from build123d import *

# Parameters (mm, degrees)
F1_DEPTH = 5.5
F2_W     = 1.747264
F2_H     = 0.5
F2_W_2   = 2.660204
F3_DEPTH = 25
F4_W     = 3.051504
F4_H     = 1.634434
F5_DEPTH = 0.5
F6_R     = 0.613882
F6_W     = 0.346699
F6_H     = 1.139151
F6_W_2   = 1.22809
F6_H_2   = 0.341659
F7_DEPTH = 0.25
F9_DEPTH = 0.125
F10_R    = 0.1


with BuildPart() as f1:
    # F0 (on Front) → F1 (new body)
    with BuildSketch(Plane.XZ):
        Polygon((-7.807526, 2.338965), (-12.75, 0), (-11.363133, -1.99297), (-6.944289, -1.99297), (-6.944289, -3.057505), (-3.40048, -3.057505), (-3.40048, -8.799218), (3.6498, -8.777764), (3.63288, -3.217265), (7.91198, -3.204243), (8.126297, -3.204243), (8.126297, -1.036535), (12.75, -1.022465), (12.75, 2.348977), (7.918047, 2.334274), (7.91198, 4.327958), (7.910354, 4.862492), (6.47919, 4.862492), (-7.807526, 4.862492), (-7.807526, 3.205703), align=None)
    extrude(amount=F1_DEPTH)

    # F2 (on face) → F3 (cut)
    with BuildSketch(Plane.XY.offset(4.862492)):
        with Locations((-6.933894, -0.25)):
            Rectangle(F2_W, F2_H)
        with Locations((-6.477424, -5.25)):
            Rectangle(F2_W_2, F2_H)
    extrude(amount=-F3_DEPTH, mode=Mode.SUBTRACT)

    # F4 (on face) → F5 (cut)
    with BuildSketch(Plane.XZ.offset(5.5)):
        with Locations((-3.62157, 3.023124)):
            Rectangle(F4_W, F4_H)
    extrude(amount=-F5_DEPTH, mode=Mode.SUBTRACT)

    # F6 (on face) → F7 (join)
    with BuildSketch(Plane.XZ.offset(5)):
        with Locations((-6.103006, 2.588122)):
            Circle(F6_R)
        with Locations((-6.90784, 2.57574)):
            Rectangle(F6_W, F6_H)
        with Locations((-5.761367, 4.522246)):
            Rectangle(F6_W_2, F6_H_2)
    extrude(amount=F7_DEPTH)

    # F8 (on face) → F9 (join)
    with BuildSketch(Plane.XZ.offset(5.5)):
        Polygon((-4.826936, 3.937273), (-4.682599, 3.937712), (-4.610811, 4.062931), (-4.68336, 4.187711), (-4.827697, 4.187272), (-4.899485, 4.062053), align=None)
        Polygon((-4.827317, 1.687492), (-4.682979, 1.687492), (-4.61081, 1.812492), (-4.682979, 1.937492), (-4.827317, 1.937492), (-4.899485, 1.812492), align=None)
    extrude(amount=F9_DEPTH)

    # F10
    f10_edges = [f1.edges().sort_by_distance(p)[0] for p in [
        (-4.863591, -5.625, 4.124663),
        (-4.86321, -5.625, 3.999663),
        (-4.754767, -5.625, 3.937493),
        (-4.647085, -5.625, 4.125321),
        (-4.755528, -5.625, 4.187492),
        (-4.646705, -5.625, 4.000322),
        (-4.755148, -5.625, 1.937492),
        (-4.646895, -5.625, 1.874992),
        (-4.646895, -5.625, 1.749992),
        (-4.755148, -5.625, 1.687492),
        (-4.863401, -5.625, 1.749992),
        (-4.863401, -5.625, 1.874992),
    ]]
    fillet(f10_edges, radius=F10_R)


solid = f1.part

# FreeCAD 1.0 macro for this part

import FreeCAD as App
import Part
import Sketcher


def edges_at(feature, points):
    """Names of the edges that pass closest to the given points."""
    edges = feature.Shape.Edges
    near = lambda p: min(range(len(edges)), key=lambda i: edges[i].distToShape(Part.Vertex(*p))[0])
    return sorted({f"Edge{near(p) + 1}" for p in points})

doc = App.newDocument("Part")
body = doc.addObject("PartDesign::Body", "Body")

# Sketch on XZ plane
sketch1 = body.newObject("Sketcher::SketchObject", "Sketch")
sketch1.AttachmentSupport = (doc.getObject("XZ_Plane"), [""])
sketch1.MapMode = "FlatFace"
sketch1.addGeometry([
    Part.LineSegment(App.Vector(-7.81, 2.34, 0), App.Vector(-12.75, 0, 0)),  # 0
    Part.LineSegment(App.Vector(-12.75, 0, 0), App.Vector(-11.36, -1.99, 0)),  # 1
    Part.LineSegment(App.Vector(-11.36, -1.99, 0), App.Vector(-6.94, -1.99, 0)),  # 2
    Part.LineSegment(App.Vector(-6.94, -1.99, 0), App.Vector(-6.94, -3.06, 0)),  # 3
    Part.LineSegment(App.Vector(-6.94, -3.06, 0), App.Vector(-3.4, -3.06, 0)),  # 4
    Part.LineSegment(App.Vector(-3.4, -3.06, 0), App.Vector(-3.4, -8.8, 0)),  # 5
    Part.LineSegment(App.Vector(-3.4, -8.8, 0), App.Vector(3.65, -8.78, 0)),  # 6
    Part.LineSegment(App.Vector(3.65, -8.78, 0), App.Vector(3.63, -3.22, 0)),  # 7
    Part.LineSegment(App.Vector(3.63, -3.22, 0), App.Vector(7.91, -3.2, 0)),  # 8
    Part.LineSegment(App.Vector(7.91, -3.2, 0), App.Vector(8.13, -3.2, 0)),  # 9
    Part.LineSegment(App.Vector(8.13, -3.2, 0), App.Vector(8.13, -1.04, 0)),  # 10
    Part.LineSegment(App.Vector(8.13, -1.04, 0), App.Vector(12.75, -1.02, 0)),  # 11
    Part.LineSegment(App.Vector(12.75, -1.02, 0), App.Vector(12.75, 2.35, 0)),  # 12
    Part.LineSegment(App.Vector(12.75, 2.35, 0), App.Vector(7.92, 2.33, 0)),  # 13
    Part.LineSegment(App.Vector(7.92, 2.33, 0), App.Vector(7.91, 4.33, 0)),  # 14
    Part.LineSegment(App.Vector(7.91, 4.33, 0), App.Vector(7.91, 4.86, 0)),  # 15
    Part.LineSegment(App.Vector(7.91, 4.86, 0), App.Vector(-7.81, 4.86, 0)),  # 16
    Part.LineSegment(App.Vector(-7.81, 4.86, 0), App.Vector(-7.81, 2.34, 0)),  # 17
], False)
sketch1.addConstraint([
    Sketcher.Constraint("Coincident", 0, 2, 1, 1),
    Sketcher.Constraint("Coincident", 1, 2, 2, 1),
    Sketcher.Constraint("Coincident", 2, 2, 3, 1),
    Sketcher.Constraint("Coincident", 3, 2, 4, 1),
    Sketcher.Constraint("Coincident", 4, 2, 5, 1),
    Sketcher.Constraint("Coincident", 5, 2, 6, 1),
    Sketcher.Constraint("Coincident", 6, 2, 7, 1),
    Sketcher.Constraint("Coincident", 7, 2, 8, 1),
    Sketcher.Constraint("Coincident", 8, 2, 9, 1),
    Sketcher.Constraint("Coincident", 9, 2, 10, 1),
    Sketcher.Constraint("Coincident", 10, 2, 11, 1),
    Sketcher.Constraint("Coincident", 11, 2, 12, 1),
    Sketcher.Constraint("Coincident", 12, 2, 13, 1),
    Sketcher.Constraint("Coincident", 13, 2, 14, 1),
    Sketcher.Constraint("Coincident", 14, 2, 15, 1),
    Sketcher.Constraint("Coincident", 15, 2, 16, 1),
    Sketcher.Constraint("Coincident", 16, 2, 17, 1),
    Sketcher.Constraint("Coincident", 17, 2, 0, 1),
    Sketcher.Constraint("Horizontal", 2),
    Sketcher.Constraint("Vertical", 3),
    Sketcher.Constraint("Horizontal", 4),
    Sketcher.Constraint("Vertical", 5),
    Sketcher.Constraint("Horizontal", 9),
    Sketcher.Constraint("Vertical", 10),
    Sketcher.Constraint("Vertical", 12),
    Sketcher.Constraint("Horizontal", 16),
    Sketcher.Constraint("Vertical", 17),
    Sketcher.Constraint("PointOnObject", 0, 2, -1),
    Sketcher.Constraint("Perpendicular", 6, 7),
    Sketcher.Constraint("Perpendicular", 7, 8),
    Sketcher.Constraint("Parallel", 8, 11),
    Sketcher.Constraint("Parallel", 11, 13),
    Sketcher.Constraint("Perpendicular", 13, 14),
    Sketcher.Constraint("Parallel", 14, 15),
    Sketcher.Constraint("Vertical", 8, 2, 14, 2),
    Sketcher.Constraint("DistanceX", 0, 2, -1, 1, 12.75),
    Sketcher.Constraint("DistanceX", -1, 1, 11, 2, 12.75),
    Sketcher.Constraint("DistanceX", 4, 1, 4, 2, 3.543809),
    Sketcher.Constraint("DistanceX", 16, 2, 16, 1, 15.71788),
    Sketcher.Constraint("DistanceY", 10, 1, 10, 2, 2.167708),
    Sketcher.Constraint("DistanceY", 12, 1, 12, 2, 3.371442),
    Sketcher.Constraint("DistanceX", -1, 1, 6, 2, 3.6498),
    Sketcher.Constraint("DistanceY", 6, 2, 7, 2, 5.560499),
    Sketcher.Constraint("DistanceX", 7, 2, 8, 2, 4.2791),
    Sketcher.Constraint("DistanceY", 7, 2, 11, 2, 2.1948),
    Sketcher.Constraint("DistanceY", 8, 2, 14, 2, 7.532201),
    Sketcher.Constraint("Distance", 0, 5.46798),
    Sketcher.Constraint("Distance", 1, 2.42803),
    Sketcher.Constraint("DistanceX", 2, 1, 2, 2, 4.418844),
    Sketcher.Constraint("DistanceX", 9, 1, 9, 2, 0.214317),
    Sketcher.Constraint("DistanceY", 3, 2, 3, 1, 1.064535),
    Sketcher.Constraint("DistanceY", 5, 2, 5, 1, 5.741713),
    Sketcher.Constraint("DistanceY", 17, 2, 17, 1, 2.523527),
    Sketcher.Constraint("DistanceY", 1, 2, -1, 1, 1.99297),
])
pad1 = body.newObject("PartDesign::Pad", "Pad")
pad1.Profile = sketch1
pad1.Length = 5.5

# Sketch on XY plane
sketch2 = body.newObject("Sketcher::SketchObject", "Sketch001")
sketch2.AttachmentSupport = (doc.getObject("XY_Plane"), [""])
sketch2.MapMode = "FlatFace"
sketch2.AttachmentOffset = App.Placement(App.Vector(0, 0, 4.862492), App.Rotation())
sketch2.addGeometry([
    Part.LineSegment(App.Vector(-7.8, 0, 0), App.Vector(-7.8, -0.5, 0)),  # 0
    Part.LineSegment(App.Vector(-7.8, -0.5, 0), App.Vector(-6.1, -0.5, 0)),  # 1
    Part.LineSegment(App.Vector(-6.1, -0.5, 0), App.Vector(-6.1, 0, 0)),  # 2
    Part.LineSegment(App.Vector(-6.1, 0, 0), App.Vector(-7.8, 0, 0)),  # 3
    Part.LineSegment(App.Vector(-7.8, -5, 0), App.Vector(-7.8, -5.5, 0)),  # 4
    Part.LineSegment(App.Vector(-7.8, -5.5, 0), App.Vector(-5.1, -5.5, 0)),  # 5
    Part.LineSegment(App.Vector(-5.1, -5.5, 0), App.Vector(-5.1, -5, 0)),  # 6
    Part.LineSegment(App.Vector(-5.1, -5, 0), App.Vector(-7.8, -5, 0)),  # 7
], False)
sketch2.addConstraint([
    Sketcher.Constraint("Coincident", 0, 2, 1, 1),
    Sketcher.Constraint("Coincident", 1, 2, 2, 1),
    Sketcher.Constraint("Coincident", 2, 2, 3, 1),
    Sketcher.Constraint("Coincident", 3, 2, 0, 1),
    Sketcher.Constraint("Coincident", 4, 2, 5, 1),
    Sketcher.Constraint("Coincident", 5, 2, 6, 1),
    Sketcher.Constraint("Coincident", 6, 2, 7, 1),
    Sketcher.Constraint("Coincident", 7, 2, 4, 1),
    Sketcher.Constraint("Vertical", 0),
    Sketcher.Constraint("Horizontal", 1),
    Sketcher.Constraint("Vertical", 2),
    Sketcher.Constraint("Horizontal", 3),
    Sketcher.Constraint("Vertical", 4),
    Sketcher.Constraint("Horizontal", 5),
    Sketcher.Constraint("Vertical", 6),
    Sketcher.Constraint("Horizontal", 7),
    Sketcher.Constraint("PointOnObject", 2, 2, -1),
    Sketcher.Constraint("Vertical", 3, 2, 4, 2),
    Sketcher.Constraint("Equal", 2, 4),
    Sketcher.Constraint("DistanceY", 0, 2, 0, 1, 0.5),
    Sketcher.Constraint("DistanceY", 6, 2, -1, 1, 5.0),
    Sketcher.Constraint("DistanceX", 1, 1, 1, 2, 1.747264),
    Sketcher.Constraint("DistanceX", 5, 1, 5, 2, 2.660204),
    Sketcher.Constraint("DistanceX", 1, 2, -1, 1, 6.060262),
])
pocket1 = body.newObject("PartDesign::Pocket", "Pocket")
pocket1.Profile = sketch2
pocket1.Length = 25

# Sketch on XZ plane
sketch3 = body.newObject("Sketcher::SketchObject", "Sketch002")
sketch3.AttachmentSupport = (doc.getObject("XZ_Plane"), [""])
sketch3.MapMode = "FlatFace"
sketch3.AttachmentOffset = App.Placement(App.Vector(0, 0, 5.5), App.Rotation())
sketch3.addGeometry([
    Part.LineSegment(App.Vector(-5.1, 3.8, 0), App.Vector(-5.1, 2.2, 0)),
    Part.LineSegment(App.Vector(-5.1, 2.2, 0), App.Vector(-2.1, 2.2, 0)),
    Part.LineSegment(App.Vector(-2.1, 2.2, 0), App.Vector(-2.1, 3.8, 0)),
    Part.LineSegment(App.Vector(-2.1, 3.8, 0), App.Vector(-5.1, 3.8, 0)),
], False)
sketch3.addConstraint([
    Sketcher.Constraint("Coincident", 0, 2, 1, 1),
    Sketcher.Constraint("Coincident", 1, 2, 2, 1),
    Sketcher.Constraint("Coincident", 2, 2, 3, 1),
    Sketcher.Constraint("Coincident", 3, 2, 0, 1),
    Sketcher.Constraint("Vertical", 0),
    Sketcher.Constraint("Horizontal", 1),
    Sketcher.Constraint("Vertical", 2),
    Sketcher.Constraint("Horizontal", 3),
    Sketcher.Constraint("DistanceX", 1, 1, 1, 2, 3.051504),
    Sketcher.Constraint("DistanceY", 0, 2, 0, 1, 1.634434),
    Sketcher.Constraint("DistanceX", 1, 2, -1, 1, 2.095818),
    Sketcher.Constraint("DistanceY", -1, 1, 2, 2, 3.840341),
])
pocket2 = body.newObject("PartDesign::Pocket", "Pocket001")
pocket2.Profile = sketch3
pocket2.Length = 0.5

# Sketch on XZ plane
sketch4 = body.newObject("Sketcher::SketchObject", "Sketch003")
sketch4.AttachmentSupport = (doc.getObject("XZ_Plane"), [""])
sketch4.MapMode = "FlatFace"
sketch4.AttachmentOffset = App.Placement(App.Vector(0, 0, 5), App.Rotation())
sketch4.addGeometry([
    Part.Circle(App.Vector(-6.1, 2.59, 0), App.Vector(0, 0, 1), 0.61),  # 0
    Part.LineSegment(App.Vector(-7.08, 3.15, 0), App.Vector(-7.08, 2.01, 0)),  # 1
    Part.LineSegment(App.Vector(-7.08, 2.01, 0), App.Vector(-6.73, 2.01, 0)),  # 2
    Part.LineSegment(App.Vector(-6.73, 2.01, 0), App.Vector(-6.73, 3.15, 0)),  # 3
    Part.LineSegment(App.Vector(-6.73, 3.15, 0), App.Vector(-7.08, 3.15, 0)),  # 4
    Part.LineSegment(App.Vector(-6.38, 4.69, 0), App.Vector(-6.38, 4.35, 0)),  # 5
    Part.LineSegment(App.Vector(-6.38, 4.35, 0), App.Vector(-5.15, 4.35, 0)),  # 6
    Part.LineSegment(App.Vector(-5.15, 4.35, 0), App.Vector(-5.15, 4.69, 0)),  # 7
    Part.LineSegment(App.Vector(-5.15, 4.69, 0), App.Vector(-6.38, 4.69, 0)),  # 8
], False)
sketch4.addConstraint([
    Sketcher.Constraint("Coincident", 1, 2, 2, 1),
    Sketcher.Constraint("Coincident", 2, 2, 3, 1),
    Sketcher.Constraint("Coincident", 3, 2, 4, 1),
    Sketcher.Constraint("Coincident", 4, 2, 1, 1),
    Sketcher.Constraint("Coincident", 5, 2, 6, 1),
    Sketcher.Constraint("Coincident", 6, 2, 7, 1),
    Sketcher.Constraint("Coincident", 7, 2, 8, 1),
    Sketcher.Constraint("Coincident", 8, 2, 5, 1),
    Sketcher.Constraint("Vertical", 1),
    Sketcher.Constraint("Horizontal", 2),
    Sketcher.Constraint("Vertical", 3),
    Sketcher.Constraint("Horizontal", 4),
    Sketcher.Constraint("Vertical", 5),
    Sketcher.Constraint("Horizontal", 6),
    Sketcher.Constraint("Vertical", 7),
    Sketcher.Constraint("Horizontal", 8),
    Sketcher.Constraint("Diameter", 0, 1.227764),
    Sketcher.Constraint("DistanceX", 2, 1, 2, 2, 0.346699),
    Sketcher.Constraint("DistanceX", 6, 1, 6, 2, 1.22809),
    Sketcher.Constraint("DistanceY", 1, 2, 1, 1, 1.139151),
    Sketcher.Constraint("DistanceY", 5, 2, 5, 1, 0.341659),
    Sketcher.Constraint("DistanceY", 3, 2, 5, 2, 1.206101),
    Sketcher.Constraint("DistanceY", -1, 1, 0, 3, 2.588122),
    Sketcher.Constraint("DistanceX", 1, 2, -1, 1, 7.081189),
    Sketcher.Constraint("DistanceX", 3, 2, 5, 2, 0.359078),
    Sketcher.Constraint("DistanceX", 0, 3, -1, 1, 6.103006),
    Sketcher.Constraint("DistanceY", -1, 1, 1, 2, 2.006165),
])
pad2 = body.newObject("PartDesign::Pad", "Pad001")
pad2.Profile = sketch4
pad2.Length = 0.25

# Sketch on XZ plane
sketch5 = body.newObject("Sketcher::SketchObject", "Sketch004")
sketch5.AttachmentSupport = (doc.getObject("XZ_Plane"), [""])
sketch5.MapMode = "FlatFace"
sketch5.AttachmentOffset = App.Placement(App.Vector(0, 0, 5.5), App.Rotation())
sketch5.addGeometry([
    Part.LineSegment(App.Vector(-4.826936, 3.937273, 0), App.Vector(-4.682599, 3.937712, 0)),  # 0
    Part.LineSegment(App.Vector(-4.682599, 3.937712, 0), App.Vector(-4.610811, 4.062931, 0)),  # 1
    Part.LineSegment(App.Vector(-4.610811, 4.062931, 0), App.Vector(-4.68336, 4.187711, 0)),  # 2
    Part.LineSegment(App.Vector(-4.68336, 4.187711, 0), App.Vector(-4.827697, 4.187272, 0)),  # 3
    Part.LineSegment(App.Vector(-4.827697, 4.187272, 0), App.Vector(-4.899485, 4.062053, 0)),  # 4
    Part.LineSegment(App.Vector(-4.899485, 4.062053, 0), App.Vector(-4.826936, 3.937273, 0)),  # 5
    Part.LineSegment(App.Vector(-4.827317, 1.687492, 0), App.Vector(-4.682979, 1.687492, 0)),  # 6
    Part.LineSegment(App.Vector(-4.682979, 1.687492, 0), App.Vector(-4.61081, 1.812492, 0)),  # 7
    Part.LineSegment(App.Vector(-4.61081, 1.812492, 0), App.Vector(-4.682979, 1.937492, 0)),  # 8
    Part.LineSegment(App.Vector(-4.682979, 1.937492, 0), App.Vector(-4.827317, 1.937492, 0)),  # 9
    Part.LineSegment(App.Vector(-4.827317, 1.937492, 0), App.Vector(-4.899485, 1.812492, 0)),  # 10
    Part.LineSegment(App.Vector(-4.899485, 1.812492, 0), App.Vector(-4.827317, 1.687492, 0)),  # 11
], False)
sketch5.addConstraint([
    Sketcher.Constraint("Coincident", 0, 2, 1, 1),
    Sketcher.Constraint("Coincident", 1, 2, 2, 1),
    Sketcher.Constraint("Coincident", 2, 2, 3, 1),
    Sketcher.Constraint("Coincident", 3, 2, 4, 1),
    Sketcher.Constraint("Coincident", 4, 2, 5, 1),
    Sketcher.Constraint("Coincident", 5, 2, 0, 1),
    Sketcher.Constraint("Coincident", 6, 2, 7, 1),
    Sketcher.Constraint("Coincident", 7, 2, 8, 1),
    Sketcher.Constraint("Coincident", 8, 2, 9, 1),
    Sketcher.Constraint("Coincident", 9, 2, 10, 1),
    Sketcher.Constraint("Coincident", 10, 2, 11, 1),
    Sketcher.Constraint("Coincident", 11, 2, 6, 1),
    Sketcher.Constraint("Horizontal", 6),
    Sketcher.Constraint("Horizontal", 9),
    Sketcher.Constraint("DistanceY", 0, 2, 2, 2, 0.249999),
    Sketcher.Constraint("DistanceY", 5, 2, 3, 2, 0.249999),
    Sketcher.Constraint("DistanceY", 6, 2, 8, 2, 0.25),
    Sketcher.Constraint("DistanceY", 6, 2, 7, 2, 0.125),
    Sketcher.Constraint("DistanceY", 10, 2, 9, 2, 0.125),
    Sketcher.Constraint("DistanceX", 6, 1, 6, 2, 0.144338),
    Sketcher.Constraint("DistanceX", 9, 2, 9, 1, 0.144338),
    Sketcher.Constraint("DistanceX", 0, 2, -1, 1, 4.682599),
    Sketcher.Constraint("DistanceY", -1, 1, 0, 2, 3.937712),
    Sketcher.Constraint("DistanceX", 1, 2, -1, 1, 4.610811),
    Sketcher.Constraint("DistanceY", -1, 1, 1, 2, 4.062931),
    Sketcher.Constraint("DistanceX", 2, 2, -1, 1, 4.68336),
    Sketcher.Constraint("DistanceX", 6, 2, -1, 1, 4.682979),
    Sketcher.Constraint("DistanceX", 7, 2, -1, 1, 4.61081),
    Sketcher.Constraint("DistanceX", 8, 2, -1, 1, 4.682979),
    Sketcher.Constraint("DistanceY", 3, 2, 2, 2, 0.000439),
    Sketcher.Constraint("DistanceX", 4, 2, 3, 2, 0.071788),
    Sketcher.Constraint("DistanceY", 4, 2, 3, 2, 0.125219),
    Sketcher.Constraint("DistanceX", 4, 2, 5, 2, 0.072549),
    Sketcher.Constraint("DistanceY", 6, 2, 0, 2, 2.25022),
    Sketcher.Constraint("DistanceX", 9, 2, 5, 2, 0.000381),
    Sketcher.Constraint("DistanceX", 10, 2, 9, 2, 0.072168),
])
pad3 = body.newObject("PartDesign::Pad", "Pad002")
pad3.Profile = sketch5
pad3.Length = 0.125
doc.recompute()

fillet = body.newObject("PartDesign::Fillet", "Fillet")
fillet.Base = (pad3, edges_at(pad3, [
    (-4.864, -5.625, 4.125),
    (-4.863, -5.625, 4),
    (-4.755, -5.625, 3.937),
    (-4.647, -5.625, 4.125),
    (-4.756, -5.625, 4.187),
    (-4.647, -5.625, 4),
    (-4.755, -5.625, 1.937),
    (-4.647, -5.625, 1.875),
    (-4.647, -5.625, 1.75),
    (-4.755, -5.625, 1.687),
    (-4.863, -5.625, 1.75),
    (-4.863, -5.625, 1.875),
]))
fillet.Radius = 0.1

doc.recompute()
